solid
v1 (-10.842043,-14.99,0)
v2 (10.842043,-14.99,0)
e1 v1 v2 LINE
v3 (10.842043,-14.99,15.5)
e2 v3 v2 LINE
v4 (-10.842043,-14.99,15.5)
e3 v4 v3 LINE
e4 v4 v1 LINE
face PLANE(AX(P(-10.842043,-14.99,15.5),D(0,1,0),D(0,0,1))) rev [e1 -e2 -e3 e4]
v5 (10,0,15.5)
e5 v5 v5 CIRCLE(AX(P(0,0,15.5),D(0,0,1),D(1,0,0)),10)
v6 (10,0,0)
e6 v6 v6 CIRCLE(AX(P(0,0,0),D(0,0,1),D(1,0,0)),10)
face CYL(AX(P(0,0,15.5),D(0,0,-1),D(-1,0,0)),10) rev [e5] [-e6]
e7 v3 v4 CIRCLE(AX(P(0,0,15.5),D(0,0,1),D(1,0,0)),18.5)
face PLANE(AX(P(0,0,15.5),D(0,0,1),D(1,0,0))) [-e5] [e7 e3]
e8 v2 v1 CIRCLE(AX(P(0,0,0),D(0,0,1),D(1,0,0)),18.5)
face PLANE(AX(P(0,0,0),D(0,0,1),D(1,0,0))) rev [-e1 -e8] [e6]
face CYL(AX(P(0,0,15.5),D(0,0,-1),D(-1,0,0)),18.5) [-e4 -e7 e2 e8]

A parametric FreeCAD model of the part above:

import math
import FreeCAD as App
import Part
import Sketcher
from FreeCAD import Vector
Q = App.Units.Quantity

doc = App.newDocument("Part")
params = doc.addObject("Spreadsheet::Sheet", "Params")
for row, (alias, value) in enumerate([
    ("sketch1_diameter", "20 mm"),
    ("sketch1_radius", "18.5 mm"),
    ("pad1_length", "15.5 mm"),
], start=1):
    params.set(f"A{row}", alias)
    params.set(f"B{row}", "=" + value)
    params.setAlias(f"B{row}", alias)

body = doc.addObject("PartDesign::Body", "Body")

# Sketch on XY plane
sketch1 = body.newObject("Sketcher::SketchObject", "Sketch")
sketch1.AttachmentSupport = (doc.getObject("XY_Plane"), [""])
sketch1.MapMode = "FlatFace"
sketch1.addGeometry(Part.LineSegment(Vector(-11, -15, 0), Vector(11, -15, 0)), False)
sketch1.addGeometry(Part.ArcOfCircle(Part.Circle(Vector(0, 0, 0), Vector(0, 0, 1), 18), math.radians(-54), math.radians(234)), False)
sketch1.addGeometry(Part.Circle(Vector(0, 0, 0), Vector(0, 0, 1), 10), False)
sketch1.addConstraint(Sketcher.Constraint("Coincident", 0, 1, 1, 2))
sketch1.addConstraint(Sketcher.Constraint("Coincident", 1, 1, 0, 2))
sketch1.addConstraint(Sketcher.Constraint("Horizontal", 0))
sketch1.addConstraint(Sketcher.Constraint("Coincident", 1, 3, -1, 1))
sketch1.addConstraint(Sketcher.Constraint("Coincident", 2, 3, -1, 1))
sketch1.addConstraint(Sketcher.Constraint("Diameter", 2, Q("20 mm")))
sketch1.addConstraint(Sketcher.Constraint("Radius", 1, Q("18.5 mm")))
sketch1.addConstraint(Sketcher.Constraint("DistanceY", 0, 1, -1, 1, Q("14.99 mm")))
sketch1.setExpression("Constraints[5]", "Params.sketch1_diameter")
sketch1.setExpression("Constraints[6]", "Params.sketch1_radius")
pad1 = body.newObject("PartDesign::Pad", "Pad")
pad1.Profile = sketch1
pad1.setExpression("Length", "Params.pad1_length")

doc.recompute()
